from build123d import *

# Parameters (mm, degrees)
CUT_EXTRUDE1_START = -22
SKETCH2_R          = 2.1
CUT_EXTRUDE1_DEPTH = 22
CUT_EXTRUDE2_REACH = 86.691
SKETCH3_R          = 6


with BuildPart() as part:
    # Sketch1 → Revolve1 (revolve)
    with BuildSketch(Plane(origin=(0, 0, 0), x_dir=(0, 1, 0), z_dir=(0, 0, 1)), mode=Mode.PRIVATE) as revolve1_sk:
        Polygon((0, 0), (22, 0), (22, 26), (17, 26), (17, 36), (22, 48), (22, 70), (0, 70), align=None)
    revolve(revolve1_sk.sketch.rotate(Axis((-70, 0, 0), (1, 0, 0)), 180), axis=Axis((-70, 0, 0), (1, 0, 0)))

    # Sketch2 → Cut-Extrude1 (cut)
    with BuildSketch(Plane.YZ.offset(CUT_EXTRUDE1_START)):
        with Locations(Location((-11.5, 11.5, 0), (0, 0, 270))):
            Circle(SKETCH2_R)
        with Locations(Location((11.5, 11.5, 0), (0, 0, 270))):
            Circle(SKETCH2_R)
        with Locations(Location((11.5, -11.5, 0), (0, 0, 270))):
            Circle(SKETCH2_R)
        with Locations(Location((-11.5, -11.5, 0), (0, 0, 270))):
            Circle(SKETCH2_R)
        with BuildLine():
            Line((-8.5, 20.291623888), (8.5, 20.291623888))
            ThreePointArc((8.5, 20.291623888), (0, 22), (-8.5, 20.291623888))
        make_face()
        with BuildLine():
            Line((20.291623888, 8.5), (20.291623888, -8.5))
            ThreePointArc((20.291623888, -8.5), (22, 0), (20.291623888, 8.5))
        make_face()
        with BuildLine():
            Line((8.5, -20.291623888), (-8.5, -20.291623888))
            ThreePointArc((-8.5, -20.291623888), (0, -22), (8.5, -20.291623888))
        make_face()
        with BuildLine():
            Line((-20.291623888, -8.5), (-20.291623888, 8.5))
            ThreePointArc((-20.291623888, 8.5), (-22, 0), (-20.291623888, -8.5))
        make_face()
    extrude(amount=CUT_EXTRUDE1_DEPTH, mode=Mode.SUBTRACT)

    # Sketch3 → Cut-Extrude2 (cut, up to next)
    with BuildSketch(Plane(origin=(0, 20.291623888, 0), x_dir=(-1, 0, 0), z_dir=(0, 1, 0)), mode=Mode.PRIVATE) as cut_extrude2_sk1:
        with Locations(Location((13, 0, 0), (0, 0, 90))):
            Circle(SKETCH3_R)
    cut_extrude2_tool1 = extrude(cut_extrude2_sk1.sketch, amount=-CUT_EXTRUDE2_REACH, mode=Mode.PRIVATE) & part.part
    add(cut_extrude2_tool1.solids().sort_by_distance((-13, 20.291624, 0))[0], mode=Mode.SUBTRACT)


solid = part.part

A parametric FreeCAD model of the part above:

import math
import FreeCAD as App
import Part
import Sketcher

doc = App.newDocument("Part")
body = doc.addObject("PartDesign::Body", "Body")

# Sketch on XY plane
sketch1 = doc.addObject("Sketcher::SketchObject", "Sketch")
body.addObject(sketch1)
sketch1.AttachmentSupport = (doc.XY_Plane, [""])
sketch1.MapMode = "FlatFace"
sketch1.addGeometry([
    Part.LineSegment(App.Vector(0, 0, 0), App.Vector(0, 22, 0)),  # 0
    Part.LineSegment(App.Vector(0, 22, 0), App.Vector(-26, 22, 0)),  # 1
    Part.LineSegment(App.Vector(-26, 22, 0), App.Vector(-26, 17, 0)),  # 2
    Part.LineSegment(App.Vector(-26, 17, 0), App.Vector(-36, 17, 0)),  # 3
    Part.LineSegment(App.Vector(-36, 17, 0), App.Vector(-48, 22, 0)),  # 4
    Part.LineSegment(App.Vector(-48, 22, 0), App.Vector(-70, 22, 0)),  # 5
    Part.LineSegment(App.Vector(-70, 22, 0), App.Vector(-70, 0, 0)),  # 6
    Part.LineSegment(App.Vector(-70, 0, 0), App.Vector(0, 0, 0)),  # 7
], False)
sketch1.addConstraint([
    Sketcher.Constraint("Coincident", 0, 2, 1, 1),
    Sketcher.Constraint("Coincident", 1, 2, 2, 1),
    Sketcher.Constraint("Coincident", 2, 2, 3, 1),
    Sketcher.Constraint("Coincident", 3, 2, 4, 1),
    Sketcher.Constraint("Coincident", 4, 2, 5, 1),
    Sketcher.Constraint("Coincident", 5, 2, 6, 1),
    Sketcher.Constraint("Coincident", 6, 2, 7, 1),
    Sketcher.Constraint("Coincident", 7, 2, 0, 1),
    Sketcher.Constraint("Vertical", 0),
    Sketcher.Constraint("Horizontal", 1),
    Sketcher.Constraint("Vertical", 2),
    Sketcher.Constraint("Horizontal", 3),
    Sketcher.Constraint("Horizontal", 5),
    Sketcher.Constraint("Vertical", 6),
    Sketcher.Constraint("Horizontal", 7),
    Sketcher.Constraint("Coincident", 7, 2, -1, 1),
    Sketcher.Constraint("Horizontal", 1, 2, 4, 2),
    Sketcher.Constraint("Equal", 5, 0),
    Sketcher.Constraint("DistanceX", 1, 2, 1, 1, 26.0),
    Sketcher.Constraint("DistanceX", 3, 2, 3, 1, 10.0),
    Sketcher.Constraint("DistanceX", 5, 2, 5, 1, 22.0),
    Sketcher.Constraint("DistanceX", 7, 1, 7, 2, 70.0),
    Sketcher.Constraint("DistanceY", 2, 2, 2, 1, 5.0),
])
revolution = doc.addObject("PartDesign::Revolution", "Revolution")
body.addObject(revolution)
revolution.Profile = sketch1
revolution.ReferenceAxis = (sketch1, ["H_Axis"])
revolution.Angle = 360

# Sketch on YZ plane
sketch2 = doc.addObject("Sketcher::SketchObject", "Sketch001")
body.addObject(sketch2)
sketch2.AttachmentSupport = (doc.YZ_Plane, [""])
sketch2.MapMode = "FlatFace"
sketch2.AttachmentOffset = App.Placement(App.Vector(0, 0, -22), App.Rotation())
sketch2.addGeometry([
    Part.Circle(App.Vector(-11.5, 11.5, 0), App.Vector(0, 0, 1), 2.1),  # 0
    Part.Circle(App.Vector(11.5, 11.5, 0), App.Vector(0, 0, 1), 2.1),  # 1
    Part.Circle(App.Vector(11.5, -11.5, 0), App.Vector(0, 0, 1), 2.1),  # 2
    Part.Circle(App.Vector(-11.5, -11.5, 0), App.Vector(0, 0, 1), 2.1),  # 3
    Part.LineSegment(App.Vector(-8.5, 20.3, 0), App.Vector(8.5, 20.3, 0)),  # 4
    Part.ArcOfCircle(Part.Circle(App.Vector(0, 0, 0), App.Vector(0, 0, 1), 22), math.radians(67), math.radians(113)),  # 5
    Part.LineSegment(App.Vector(20.3, 8.5, 0), App.Vector(20.3, -8.5, 0)),  # 6
    Part.ArcOfCircle(Part.Circle(App.Vector(0, 0, 0), App.Vector(0, 0, 1), 22), math.radians(-23), math.radians(23)),  # 7
    Part.LineSegment(App.Vector(8.5, -20.3, 0), App.Vector(-8.5, -20.3, 0)),  # 8
    Part.ArcOfCircle(Part.Circle(App.Vector(0, 0, 0), App.Vector(0, 0, 1), 22), math.radians(-113), math.radians(-67)),  # 9
    Part.LineSegment(App.Vector(-20.3, -8.5, 0), App.Vector(-20.3, 8.5, 0)),  # 10
    Part.ArcOfCircle(Part.Circle(App.Vector(0, 0, 0), App.Vector(0, 0, 1), 22), math.radians(157), math.radians(203)),  # 11
], False)
sketch2.addConstraint([
    Sketcher.Constraint("Coincident", 4, 1, 5, 2),
    Sketcher.Constraint("Coincident", 5, 1, 4, 2),
    Sketcher.Constraint("Coincident", 6, 1, 7, 2),
    Sketcher.Constraint("Coincident", 7, 1, 6, 2),
    Sketcher.Constraint("Coincident", 8, 1, 9, 2),
    Sketcher.Constraint("Coincident", 9, 1, 8, 2),
    Sketcher.Constraint("Coincident", 10, 1, 11, 2),
    Sketcher.Constraint("Coincident", 11, 1, 10, 2),
    Sketcher.Constraint("Horizontal", 4),
    Sketcher.Constraint("Vertical", 6),
    Sketcher.Constraint("Horizontal", 8),
    Sketcher.Constraint("Vertical", 10),
    Sketcher.Constraint("Coincident", 5, 3, -1, 1),
    Sketcher.Constraint("Coincident", 7, 3, -1, 1),
    Sketcher.Constraint("Coincident", 9, 3, -1, 1),
    Sketcher.Constraint("Coincident", 11, 3, -1, 1),
    Sketcher.Constraint("Equal", 0, 1),
    Sketcher.Constraint("Equal", 1, 2),
    Sketcher.Constraint("Equal", 2, 3),
    Sketcher.Constraint("Equal", 5, 7),
    Sketcher.Constraint("Equal", 7, 9),
    Sketcher.Constraint("Equal", 9, 11),
    Sketcher.Constraint("Symmetric", 0, 3, 2, 3, -1, 1),
    Sketcher.Constraint("Symmetric", 1, 3, 3, 3, -1, 1),
    Sketcher.Constraint("Symmetric", 0, 3, 1, 3, -2),
    Sketcher.Constraint("Horizontal", 7, 1, 10, 1),
    Sketcher.Constraint("Vertical", 5, 1, 8, 1),
    Sketcher.Constraint("Equal", 8, 6),
    Sketcher.Constraint("Radius", 5, 22.0),
    Sketcher.Constraint("Diameter", 0, 4.2),
    Sketcher.Constraint("DistanceX", 4, 1, 4, 2, 17.0),
    Sketcher.Constraint("DistanceX", 0, 3, 1, 3, 23.0),
    Sketcher.Constraint("DistanceY", 2, 3, 1, 3, 23.0),
])
pocket1 = doc.addObject("PartDesign::Pocket", "Pocket")
body.addObject(pocket1)
pocket1.Profile = sketch2
pocket1.Length = 22
pocket1.Reversed = True

# Sketch on XZ plane
sketch3 = doc.addObject("Sketcher::SketchObject", "Sketch002")
body.addObject(sketch3)
sketch3.AttachmentSupport = (doc.XZ_Plane, [""])
sketch3.MapMode = "FlatFace"
sketch3.AttachmentOffset = App.Placement(App.Vector(0, 0, -20.291624), App.Rotation())
sketch3.addGeometry(Part.Circle(App.Vector(-13, 0, 0), App.Vector(0, 0, 1), 6), False)
sketch3.addConstraint([
    Sketcher.Constraint("PointOnObject", 0, 3, -1),
    Sketcher.Constraint("Diameter", 0, 12.0),
    Sketcher.Constraint("DistanceX", 0, 3, -1, 1, 13.0),
])
pocket2 = doc.addObject("PartDesign::Pocket", "Pocket001")
body.addObject(pocket2)
pocket2.Profile = sketch3
pocket2.Type = "UpToFirst"
pocket2.Reversed = True

doc.recompute()
